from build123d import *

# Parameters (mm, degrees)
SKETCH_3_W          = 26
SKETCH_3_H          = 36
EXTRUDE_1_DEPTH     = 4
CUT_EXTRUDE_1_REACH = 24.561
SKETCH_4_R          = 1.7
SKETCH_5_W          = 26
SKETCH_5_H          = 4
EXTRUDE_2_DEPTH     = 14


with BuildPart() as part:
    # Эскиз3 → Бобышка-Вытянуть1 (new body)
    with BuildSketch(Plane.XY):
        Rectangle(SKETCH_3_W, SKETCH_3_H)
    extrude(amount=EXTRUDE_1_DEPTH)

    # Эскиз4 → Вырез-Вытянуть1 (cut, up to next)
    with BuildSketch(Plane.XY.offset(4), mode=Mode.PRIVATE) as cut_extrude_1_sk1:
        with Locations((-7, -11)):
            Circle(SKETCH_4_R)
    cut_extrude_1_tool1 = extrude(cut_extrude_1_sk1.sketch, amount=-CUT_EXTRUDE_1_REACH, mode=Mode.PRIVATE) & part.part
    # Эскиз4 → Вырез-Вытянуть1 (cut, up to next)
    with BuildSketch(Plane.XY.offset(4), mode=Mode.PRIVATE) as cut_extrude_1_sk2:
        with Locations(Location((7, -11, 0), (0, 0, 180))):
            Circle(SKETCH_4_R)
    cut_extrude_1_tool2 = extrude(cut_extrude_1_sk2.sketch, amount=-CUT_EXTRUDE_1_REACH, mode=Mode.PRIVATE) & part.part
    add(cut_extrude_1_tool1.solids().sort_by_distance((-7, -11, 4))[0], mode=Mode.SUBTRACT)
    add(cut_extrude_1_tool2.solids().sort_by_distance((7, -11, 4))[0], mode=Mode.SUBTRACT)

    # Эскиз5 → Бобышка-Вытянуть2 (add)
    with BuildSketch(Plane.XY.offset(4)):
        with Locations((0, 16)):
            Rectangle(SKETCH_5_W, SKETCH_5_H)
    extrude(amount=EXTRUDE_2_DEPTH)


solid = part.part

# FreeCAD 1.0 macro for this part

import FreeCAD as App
import Part
import Sketcher
Q = App.Units.Quantity

doc = App.newDocument("Part")
body = doc.addObject("PartDesign::Body", "Body")

# Sketch on XY plane
sketch1 = doc.addObject("Sketcher::SketchObject", "Sketch")
body.addObject(sketch1)
sketch1.AttachmentSupport = (doc.XY_Plane, [""])
sketch1.MapMode = "FlatFace"
sketch1.addGeometry([
    Part.LineSegment(App.Vector(-13, 18, 0), App.Vector(-13, -18, 0)),
    Part.LineSegment(App.Vector(-13, -18, 0), App.Vector(13, -18, 0)),
    Part.LineSegment(App.Vector(13, -18, 0), App.Vector(13, 18, 0)),
    Part.LineSegment(App.Vector(13, 18, 0), App.Vector(-13, 18, 0)),
], False)
sketch1.addConstraint([
    Sketcher.Constraint("Coincident", 0, 2, 1, 1),
    Sketcher.Constraint("Coincident", 1, 2, 2, 1),
    Sketcher.Constraint("Coincident", 2, 2, 3, 1),
    Sketcher.Constraint("Coincident", 3, 2, 0, 1),
    Sketcher.Constraint("Vertical", 0),
    Sketcher.Constraint("Horizontal", 1),
    Sketcher.Constraint("Vertical", 2),
    Sketcher.Constraint("Horizontal", 3),
    Sketcher.Constraint("Symmetric", 0, 2, 2, 2, -1, 1),
    Sketcher.Constraint("DistanceX", 1, 1, 1, 2, Q("26 mm")),
    Sketcher.Constraint("DistanceY", 0, 2, 0, 1, Q("36 mm")),
])
pad1 = doc.addObject("PartDesign::Pad", "Pad")
body.addObject(pad1)
pad1.Profile = sketch1
pad1.Length = 4

# Sketch on XY plane
sketch2 = doc.addObject("Sketcher::SketchObject", "Sketch001")
body.addObject(sketch2)
sketch2.AttachmentSupport = (doc.XY_Plane, [""])
sketch2.MapMode = "FlatFace"
sketch2.AttachmentOffset = App.Placement(App.Vector(0, 0, 4), App.Rotation())
sketch2.addGeometry(Part.Circle(App.Vector(-7, -11, 0), App.Vector(0, 0, 1), 1.7), False)
sketch2.addConstraint([
    Sketcher.Constraint("Diameter", 0, Q("3.4 mm")),
    Sketcher.Constraint("DistanceX", 0, 3, -1, 1, Q("7 mm")),
    Sketcher.Constraint("DistanceY", 0, 3, -1, 1, Q("11 mm")),
])
pocket1 = doc.addObject("PartDesign::Pocket", "Pocket")
body.addObject(pocket1)
pocket1.Profile = sketch2
pocket1.Type = "UpToFirst"

# Sketch on XY plane
sketch3 = doc.addObject("Sketcher::SketchObject", "Sketch002")
body.addObject(sketch3)
sketch3.AttachmentSupport = (doc.XY_Plane, [""])
sketch3.MapMode = "FlatFace"
sketch3.AttachmentOffset = App.Placement(App.Vector(0, 0, 4), App.Rotation())
sketch3.addGeometry(Part.Circle(App.Vector(7, -11, 0), App.Vector(0, 0, 1), 1.7), False)
sketch3.addConstraint([
    Sketcher.Constraint("Diameter", 0, Q("3.4 mm")),
    Sketcher.Constraint("DistanceX", -1, 1, 0, 3, Q("7 mm")),
    Sketcher.Constraint("DistanceY", 0, 3, -1, 1, Q("11 mm")),
])
pocket2 = doc.addObject("PartDesign::Pocket", "Pocket001")
body.addObject(pocket2)
pocket2.Profile = sketch3
pocket2.Type = "UpToFirst"

# Sketch on XY plane
sketch4 = doc.addObject("Sketcher::SketchObject", "Sketch003")
body.addObject(sketch4)
sketch4.AttachmentSupport = (doc.XY_Plane, [""])
sketch4.MapMode = "FlatFace"
sketch4.AttachmentOffset = App.Placement(App.Vector(0, 0, 4), App.Rotation())
sketch4.addGeometry([
    Part.LineSegment(App.Vector(-13, 18, 0), App.Vector(-13, 14, 0)),
    Part.LineSegment(App.Vector(-13, 14, 0), App.Vector(13, 14, 0)),
    Part.LineSegment(App.Vector(13, 14, 0), App.Vector(13, 18, 0)),
    Part.LineSegment(App.Vector(13, 18, 0), App.Vector(-13, 18, 0)),
], False)
sketch4.addConstraint([
    Sketcher.Constraint("Coincident", 0, 2, 1, 1),
    Sketcher.Constraint("Coincident", 1, 2, 2, 1),
    Sketcher.Constraint("Coincident", 2, 2, 3, 1),
    Sketcher.Constraint("Coincident", 3, 2, 0, 1),
    Sketcher.Constraint("Vertical", 0),
    Sketcher.Constraint("Horizontal", 1),
    Sketcher.Constraint("Vertical", 2),
    Sketcher.Constraint("Horizontal", 3),
    Sketcher.Constraint("DistanceX", 1, 1, 1, 2, Q("26 mm")),
    Sketcher.Constraint("DistanceY", 0, 2, 0, 1, Q("4 mm")),
    Sketcher.Constraint("DistanceX", 0, 2, -1, 1, Q("13 mm")),
    Sketcher.Constraint("DistanceY", -1, 1, 0, 2, Q("14 mm")),
])
pad2 = doc.addObject("PartDesign::Pad", "Pad001")
body.addObject(pad2)
pad2.Profile = sketch4
pad2.Length = 14

doc.recompute()
